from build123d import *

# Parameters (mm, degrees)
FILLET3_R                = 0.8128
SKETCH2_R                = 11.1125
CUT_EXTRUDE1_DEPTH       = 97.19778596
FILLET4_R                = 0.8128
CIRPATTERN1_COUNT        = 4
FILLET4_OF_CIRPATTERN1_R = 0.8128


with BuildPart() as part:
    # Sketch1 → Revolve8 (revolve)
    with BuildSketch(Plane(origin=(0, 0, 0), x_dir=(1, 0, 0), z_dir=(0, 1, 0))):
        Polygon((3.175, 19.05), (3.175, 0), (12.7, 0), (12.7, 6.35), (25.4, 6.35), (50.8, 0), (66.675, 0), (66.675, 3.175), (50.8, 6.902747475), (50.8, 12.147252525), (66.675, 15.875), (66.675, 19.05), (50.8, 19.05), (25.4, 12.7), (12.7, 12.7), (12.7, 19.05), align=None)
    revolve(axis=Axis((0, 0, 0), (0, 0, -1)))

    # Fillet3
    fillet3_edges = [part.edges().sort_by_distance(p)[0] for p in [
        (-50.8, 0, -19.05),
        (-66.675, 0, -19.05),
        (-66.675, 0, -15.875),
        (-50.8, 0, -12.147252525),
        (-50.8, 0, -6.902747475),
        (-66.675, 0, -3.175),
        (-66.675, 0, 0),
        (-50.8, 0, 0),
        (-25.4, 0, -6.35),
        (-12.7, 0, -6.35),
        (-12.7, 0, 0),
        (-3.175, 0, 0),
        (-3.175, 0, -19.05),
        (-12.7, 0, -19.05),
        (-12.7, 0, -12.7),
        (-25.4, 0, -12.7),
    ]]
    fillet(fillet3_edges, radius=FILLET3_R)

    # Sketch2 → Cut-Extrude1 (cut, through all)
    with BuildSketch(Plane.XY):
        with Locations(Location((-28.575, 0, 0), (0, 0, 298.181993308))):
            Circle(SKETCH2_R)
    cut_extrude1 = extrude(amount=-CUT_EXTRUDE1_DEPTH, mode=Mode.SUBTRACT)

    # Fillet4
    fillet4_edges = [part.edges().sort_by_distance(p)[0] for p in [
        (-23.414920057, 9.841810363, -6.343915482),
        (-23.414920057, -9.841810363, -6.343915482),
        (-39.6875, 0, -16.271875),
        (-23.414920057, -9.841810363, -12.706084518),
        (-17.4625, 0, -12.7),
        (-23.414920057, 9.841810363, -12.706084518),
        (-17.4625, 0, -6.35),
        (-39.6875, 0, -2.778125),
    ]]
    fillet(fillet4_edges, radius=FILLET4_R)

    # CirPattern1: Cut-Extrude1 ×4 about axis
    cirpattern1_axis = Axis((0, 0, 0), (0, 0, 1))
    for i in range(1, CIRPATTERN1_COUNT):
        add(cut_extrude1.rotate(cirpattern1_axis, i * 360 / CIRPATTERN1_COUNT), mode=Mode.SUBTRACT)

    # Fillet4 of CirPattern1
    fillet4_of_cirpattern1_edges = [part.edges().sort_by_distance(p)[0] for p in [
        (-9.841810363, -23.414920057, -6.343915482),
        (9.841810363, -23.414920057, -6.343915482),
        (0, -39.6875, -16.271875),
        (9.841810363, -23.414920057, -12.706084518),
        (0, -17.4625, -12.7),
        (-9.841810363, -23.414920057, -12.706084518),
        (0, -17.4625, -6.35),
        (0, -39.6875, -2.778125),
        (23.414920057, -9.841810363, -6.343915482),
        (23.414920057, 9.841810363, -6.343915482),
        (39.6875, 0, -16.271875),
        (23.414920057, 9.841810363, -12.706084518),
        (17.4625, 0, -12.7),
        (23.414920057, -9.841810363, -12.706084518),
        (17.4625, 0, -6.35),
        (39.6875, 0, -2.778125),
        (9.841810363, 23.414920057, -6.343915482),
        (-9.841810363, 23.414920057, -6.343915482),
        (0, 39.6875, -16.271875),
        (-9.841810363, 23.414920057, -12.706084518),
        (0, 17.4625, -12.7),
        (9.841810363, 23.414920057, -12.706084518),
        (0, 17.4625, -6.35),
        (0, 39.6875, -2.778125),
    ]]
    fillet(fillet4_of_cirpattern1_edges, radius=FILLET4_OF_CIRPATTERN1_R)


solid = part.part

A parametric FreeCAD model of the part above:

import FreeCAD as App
import Part
import Sketcher

V = App.Vector
Q = App.Units.Quantity


def edges_at(feature, points):
    """Names of the edges that pass closest to the given points."""
    edges = feature.Shape.Edges
    near = lambda p: min(range(len(edges)), key=lambda i: edges[i].distToShape(Part.Vertex(*p))[0])
    return sorted({f"Edge{near(p) + 1}" for p in points})


def add_polygon(sketch, points):
    """Adds a closed chain of lines whose ends are joined by coincident constraints."""
    first, n = sketch.GeometryCount, len(points)
    for a, b in zip(points, points[1:] + points[:1]):
        sketch.addGeometry(Part.LineSegment(App.Vector(*a, 0), App.Vector(*b, 0)), False)
    for i in range(n):
        sketch.addConstraint(Sketcher.Constraint("Coincident", first + i, 2, first + (i + 1) % n, 1))

doc = App.newDocument("Part")
body = doc.addObject("PartDesign::Body", "Body")

sketch1 = doc.addObject("Sketcher::SketchObject", "Sketch")
body.addObject(sketch1)
sketch1.AttachmentSupport = (doc.XZ_Plane, [""])
sketch1.MapMode = "FlatFace"
add_polygon(sketch1, [(3.2, -19.1), (3.2, 0), (12.7, 0), (12.7, -6.3), (25.4, -6.3), (50.8, 0), (66.7, 0), (66.7, -3.2), (50.8, -6.9), (50.8, -12.1), (66.7, -15.9), (66.7, -19.1), (50.8, -19.1), (25.4, -12.7), (12.7, -12.7), (12.7, -19.1)])
sketch1.addConstraint(Sketcher.Constraint("Vertical", 0))
sketch1.addConstraint(Sketcher.Constraint("Horizontal", 1))
sketch1.addConstraint(Sketcher.Constraint("Vertical", 2))
sketch1.addConstraint(Sketcher.Constraint("Horizontal", 3))
sketch1.addConstraint(Sketcher.Constraint("Horizontal", 5))
sketch1.addConstraint(Sketcher.Constraint("Vertical", 6))
sketch1.addConstraint(Sketcher.Constraint("Vertical", 8))
sketch1.addConstraint(Sketcher.Constraint("Vertical", 10))
sketch1.addConstraint(Sketcher.Constraint("Horizontal", 11))
sketch1.addConstraint(Sketcher.Constraint("Horizontal", 13))
sketch1.addConstraint(Sketcher.Constraint("Vertical", 14))
sketch1.addConstraint(Sketcher.Constraint("Horizontal", 15))
sketch1.addConstraint(Sketcher.Constraint("PointOnObject", 0, 2, -1))
sketch1.addConstraint(Sketcher.Constraint("PointOnObject", 4, 2, -1))
sketch1.addConstraint(Sketcher.Constraint("Horizontal", 11, 2, 14, 2))
sketch1.addConstraint(Sketcher.Constraint("Vertical", 4, 2, 7, 2))
sketch1.addConstraint(Sketcher.Constraint("Vertical", 6, 2, 9, 2))
sketch1.addConstraint(Sketcher.Constraint("Vertical", 8, 2, 11, 2))
sketch1.addConstraint(Sketcher.Constraint("Vertical", 3, 2, 12, 2))
sketch1.addConstraint(Sketcher.Constraint("Vertical", 2, 2, 13, 2))
sketch1.addConstraint(Sketcher.Constraint("Equal", 6, 10))
sketch1.addConstraint(Sketcher.Constraint("Equal", 2, 14))
sketch1.addConstraint(Sketcher.Constraint("Equal", 7, 9))
sketch1.addConstraint(Sketcher.Constraint("DistanceX", 3, 1, 3, 2, Q("0.5 in")))
sketch1.addConstraint(Sketcher.Constraint("DistanceX", -1, 1, 3, 2, Q("1 in")))
sketch1.addConstraint(Sketcher.Constraint("DistanceX", -1, 1, 4, 2, Q("2 in")))
sketch1.addConstraint(Sketcher.Constraint("DistanceY", 0, 1, 0, 2, Q("0.75 in")))
sketch1.addConstraint(Sketcher.Constraint("DistanceY", 2, 2, 2, 1, Q("0.25 in")))
sketch1.addConstraint(Sketcher.Constraint("DistanceX", 0, 2, 5, 2, Q("2.5 in")))
sketch1.addConstraint(Sketcher.Constraint("DistanceY", 9, 2, 6, 2, Q("0.5 in")))
sketch1.addConstraint(Sketcher.Constraint("DistanceX", 1, 1, 1, 2, Q("0.375 in")))
sketch1.addConstraint(Sketcher.Constraint("Distance", 7, Q("0.642 in")))
revolution = doc.addObject("PartDesign::Revolution", "Revolution")
body.addObject(revolution)
revolution.Profile = sketch1
revolution.ReferenceAxis = (sketch1, ["V_Axis"])
revolution.Angle = 360
doc.recompute()

fillet = doc.addObject("PartDesign::Fillet", "Fillet")
body.addObject(fillet)
fillet.Base = (revolution, edges_at(revolution, [
    (-50.8, 0, -19.05),
    (-66.675, 0, -19.05),
    (-66.675, 0, -15.875),
    (-50.8, 0, -12.147),
    (-50.8, 0, -6.903),
    (-66.675, 0, -3.175),
    (-66.675, 0, 0),
    (-50.8, 0, 0),
    (-25.4, 0, -6.35),
    (-12.7, 0, -6.35),
    (-12.7, 0, 0),
    (-3.175, 0, 0),
    (-3.175, 0, -19.05),
    (-12.7, 0, -19.05),
    (-12.7, 0, -12.7),
    (-25.4, 0, -12.7),
]))
fillet.Radius = Q("0.032 in")

sketch2 = doc.addObject("Sketcher::SketchObject", "Sketch001")
body.addObject(sketch2)
sketch2.AttachmentSupport = (doc.XY_Plane, [""])
sketch2.MapMode = "FlatFace"
sketch2.addGeometry(Part.Circle(V(-29, 0, 0), V(0, 0, 1), 11), False)
sketch2.addConstraint(Sketcher.Constraint("PointOnObject", 0, 3, -1))
sketch2.addConstraint(Sketcher.Constraint("Diameter", 0, Q("0.875 in")))
sketch2.addConstraint(Sketcher.Constraint("DistanceX", 0, 3, -1, 1, Q("1.125 in")))
pocket1 = doc.addObject("PartDesign::Pocket", "Pocket")
body.addObject(pocket1)
pocket1.Profile = sketch2
pocket1.Type = "ThroughAll"
doc.recompute()

fillet2 = doc.addObject("PartDesign::Fillet", "Fillet001")
body.addObject(fillet2)
fillet2.Base = (pocket1, edges_at(pocket1, [
    (-23.415, 9.842, -6.344),
    (-23.415, -9.842, -6.344),
    (-39.688, 0, -16.272),
    (-23.415, -9.842, -12.706),
    (-17.462, 0, -12.7),
    (-23.415, 9.842, -12.706),
    (-17.462, 0, -6.35),
    (-39.688, 0, -2.778),
]))
fillet2.Radius = Q("0.032 in")
doc.recompute()

polarpattern = doc.addObject("PartDesign::PolarPattern", "PolarPattern")
body.addObject(polarpattern)
polarpattern.Originals = [pocket1]
polarpattern.Axis = (doc.Z_Axis, [""])
polarpattern.Angle = 360
polarpattern.Occurrences = 4
body.Tip = polarpattern
doc.recompute()

fillet3 = doc.addObject("PartDesign::Fillet", "Fillet002")
body.addObject(fillet3)
fillet3.Base = (polarpattern, edges_at(polarpattern, [
    (-9.842, -23.415, -6.344),
    (9.842, -23.415, -6.344),
    (0, -39.688, -16.272),
    (9.842, -23.415, -12.706),
    (0, -17.462, -12.7),
    (-9.842, -23.415, -12.706),
    (0, -17.462, -6.35),
    (0, -39.688, -2.778),
    (23.415, -9.842, -6.344),
    (23.415, 9.842, -6.344),
    (34.273, 9.54, -15.244),
    (23.415, 9.842, -12.706),
    (17.462, 0, -12.7),
    (23.415, -9.842, -12.706),
    (17.462, 0, -6.35),
    (34.273, -9.54, -3.806),
    (9.842, 23.415, -6.344),
    (-9.842, 23.415, -6.344),
    (0, 39.688, -16.272),
    (-9.842, 23.415, -12.706),
    (0, 17.462, -12.7),
    (9.842, 23.415, -12.706),
    (0, 17.462, -6.35),
    (0, 39.688, -2.778),
]))
fillet3.Radius = Q("0.032 in")

doc.recompute()
